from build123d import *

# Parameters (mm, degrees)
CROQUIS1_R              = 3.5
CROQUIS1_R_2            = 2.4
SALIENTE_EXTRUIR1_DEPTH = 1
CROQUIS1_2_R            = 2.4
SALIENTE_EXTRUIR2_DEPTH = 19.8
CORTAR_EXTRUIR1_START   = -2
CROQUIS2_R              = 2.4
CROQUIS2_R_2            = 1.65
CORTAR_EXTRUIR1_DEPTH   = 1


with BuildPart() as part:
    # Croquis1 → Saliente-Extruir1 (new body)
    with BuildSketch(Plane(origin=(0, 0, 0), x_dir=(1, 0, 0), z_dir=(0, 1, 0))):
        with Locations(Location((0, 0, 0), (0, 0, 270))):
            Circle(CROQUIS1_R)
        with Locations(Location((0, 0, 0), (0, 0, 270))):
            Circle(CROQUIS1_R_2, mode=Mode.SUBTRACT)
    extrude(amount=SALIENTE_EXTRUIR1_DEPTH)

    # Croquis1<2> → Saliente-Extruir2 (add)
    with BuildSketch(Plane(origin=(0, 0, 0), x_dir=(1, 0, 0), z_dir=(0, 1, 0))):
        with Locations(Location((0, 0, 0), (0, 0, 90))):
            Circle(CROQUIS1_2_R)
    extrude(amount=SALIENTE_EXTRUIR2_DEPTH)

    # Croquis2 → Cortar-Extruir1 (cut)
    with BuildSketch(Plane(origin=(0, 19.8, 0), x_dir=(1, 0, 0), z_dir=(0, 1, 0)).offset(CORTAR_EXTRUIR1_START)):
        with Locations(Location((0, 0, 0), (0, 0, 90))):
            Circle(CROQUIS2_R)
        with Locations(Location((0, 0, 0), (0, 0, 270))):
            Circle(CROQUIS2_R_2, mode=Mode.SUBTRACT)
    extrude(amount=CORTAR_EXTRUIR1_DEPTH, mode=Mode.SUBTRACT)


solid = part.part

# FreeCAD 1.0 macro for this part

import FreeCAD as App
import Part
import Sketcher
from FreeCAD import Vector
Q = App.Units.Quantity

doc = App.newDocument("Part")
body = doc.addObject("PartDesign::Body", "Body")

sketch1 = body.newObject("Sketcher::SketchObject", "Sketch")
sketch1.AttachmentSupport = (doc.getObject("XZ_Plane"), [""])
sketch1.MapMode = "FlatFace"
sketch1.addGeometry([
    Part.Circle(Vector(0, 0, 0), Vector(0, 0, 1), 3.5),
    Part.Circle(Vector(0, 0, 0), Vector(0, 0, 1), 2.4),
], False)
sketch1.addConstraint([
    Sketcher.Constraint("Coincident", 0, 3, -1, 1),
    Sketcher.Constraint("Coincident", 1, 3, -1, 1),
    Sketcher.Constraint("Diameter", 0, Q("7 mm")),
    Sketcher.Constraint("Diameter", 1, Q("4.8 mm")),
])
pad1 = body.newObject("PartDesign::Pad", "Pad")
pad1.Profile = sketch1
pad1.Length = 1
pad1.Reversed = True

sketch2 = body.newObject("Sketcher::SketchObject", "Sketch001")
sketch2.AttachmentSupport = (doc.getObject("XZ_Plane"), [""])
sketch2.MapMode = "FlatFace"
sketch2.addGeometry(Part.Circle(Vector(0, 0, 0), Vector(0, 0, 1), 2.4), False)
sketch2.addConstraint([
    Sketcher.Constraint("Coincident", 0, 3, -1, 1),
    Sketcher.Constraint("Diameter", 0, Q("4.8 mm")),
])
pad2 = body.newObject("PartDesign::Pad", "Pad001")
pad2.Profile = sketch2
pad2.Length = 19.8
pad2.Reversed = True

sketch3 = body.newObject("Sketcher::SketchObject", "Sketch002")
sketch3.AttachmentSupport = (doc.getObject("XZ_Plane"), [""])
sketch3.MapMode = "FlatFace"
sketch3.AttachmentOffset = App.Placement(Vector(0, 0, -17.8), App.Rotation())
sketch3.addGeometry([
    Part.Circle(Vector(0, 0, 0), Vector(0, 0, 1), 2.4),
    Part.Circle(Vector(0, 0, 0), Vector(0, 0, 1), 1.6),
], False)
sketch3.addConstraint([
    Sketcher.Constraint("Coincident", 0, 3, -1, 1),
    Sketcher.Constraint("Coincident", 1, 3, -1, 1),
    Sketcher.Constraint("Diameter", 0, Q("4.8 mm")),
    Sketcher.Constraint("Diameter", 1, Q("3.3 mm")),
])
pocket1 = body.newObject("PartDesign::Pocket", "Pocket")
pocket1.Profile = sketch3
pocket1.Length = 1

doc.recompute()
